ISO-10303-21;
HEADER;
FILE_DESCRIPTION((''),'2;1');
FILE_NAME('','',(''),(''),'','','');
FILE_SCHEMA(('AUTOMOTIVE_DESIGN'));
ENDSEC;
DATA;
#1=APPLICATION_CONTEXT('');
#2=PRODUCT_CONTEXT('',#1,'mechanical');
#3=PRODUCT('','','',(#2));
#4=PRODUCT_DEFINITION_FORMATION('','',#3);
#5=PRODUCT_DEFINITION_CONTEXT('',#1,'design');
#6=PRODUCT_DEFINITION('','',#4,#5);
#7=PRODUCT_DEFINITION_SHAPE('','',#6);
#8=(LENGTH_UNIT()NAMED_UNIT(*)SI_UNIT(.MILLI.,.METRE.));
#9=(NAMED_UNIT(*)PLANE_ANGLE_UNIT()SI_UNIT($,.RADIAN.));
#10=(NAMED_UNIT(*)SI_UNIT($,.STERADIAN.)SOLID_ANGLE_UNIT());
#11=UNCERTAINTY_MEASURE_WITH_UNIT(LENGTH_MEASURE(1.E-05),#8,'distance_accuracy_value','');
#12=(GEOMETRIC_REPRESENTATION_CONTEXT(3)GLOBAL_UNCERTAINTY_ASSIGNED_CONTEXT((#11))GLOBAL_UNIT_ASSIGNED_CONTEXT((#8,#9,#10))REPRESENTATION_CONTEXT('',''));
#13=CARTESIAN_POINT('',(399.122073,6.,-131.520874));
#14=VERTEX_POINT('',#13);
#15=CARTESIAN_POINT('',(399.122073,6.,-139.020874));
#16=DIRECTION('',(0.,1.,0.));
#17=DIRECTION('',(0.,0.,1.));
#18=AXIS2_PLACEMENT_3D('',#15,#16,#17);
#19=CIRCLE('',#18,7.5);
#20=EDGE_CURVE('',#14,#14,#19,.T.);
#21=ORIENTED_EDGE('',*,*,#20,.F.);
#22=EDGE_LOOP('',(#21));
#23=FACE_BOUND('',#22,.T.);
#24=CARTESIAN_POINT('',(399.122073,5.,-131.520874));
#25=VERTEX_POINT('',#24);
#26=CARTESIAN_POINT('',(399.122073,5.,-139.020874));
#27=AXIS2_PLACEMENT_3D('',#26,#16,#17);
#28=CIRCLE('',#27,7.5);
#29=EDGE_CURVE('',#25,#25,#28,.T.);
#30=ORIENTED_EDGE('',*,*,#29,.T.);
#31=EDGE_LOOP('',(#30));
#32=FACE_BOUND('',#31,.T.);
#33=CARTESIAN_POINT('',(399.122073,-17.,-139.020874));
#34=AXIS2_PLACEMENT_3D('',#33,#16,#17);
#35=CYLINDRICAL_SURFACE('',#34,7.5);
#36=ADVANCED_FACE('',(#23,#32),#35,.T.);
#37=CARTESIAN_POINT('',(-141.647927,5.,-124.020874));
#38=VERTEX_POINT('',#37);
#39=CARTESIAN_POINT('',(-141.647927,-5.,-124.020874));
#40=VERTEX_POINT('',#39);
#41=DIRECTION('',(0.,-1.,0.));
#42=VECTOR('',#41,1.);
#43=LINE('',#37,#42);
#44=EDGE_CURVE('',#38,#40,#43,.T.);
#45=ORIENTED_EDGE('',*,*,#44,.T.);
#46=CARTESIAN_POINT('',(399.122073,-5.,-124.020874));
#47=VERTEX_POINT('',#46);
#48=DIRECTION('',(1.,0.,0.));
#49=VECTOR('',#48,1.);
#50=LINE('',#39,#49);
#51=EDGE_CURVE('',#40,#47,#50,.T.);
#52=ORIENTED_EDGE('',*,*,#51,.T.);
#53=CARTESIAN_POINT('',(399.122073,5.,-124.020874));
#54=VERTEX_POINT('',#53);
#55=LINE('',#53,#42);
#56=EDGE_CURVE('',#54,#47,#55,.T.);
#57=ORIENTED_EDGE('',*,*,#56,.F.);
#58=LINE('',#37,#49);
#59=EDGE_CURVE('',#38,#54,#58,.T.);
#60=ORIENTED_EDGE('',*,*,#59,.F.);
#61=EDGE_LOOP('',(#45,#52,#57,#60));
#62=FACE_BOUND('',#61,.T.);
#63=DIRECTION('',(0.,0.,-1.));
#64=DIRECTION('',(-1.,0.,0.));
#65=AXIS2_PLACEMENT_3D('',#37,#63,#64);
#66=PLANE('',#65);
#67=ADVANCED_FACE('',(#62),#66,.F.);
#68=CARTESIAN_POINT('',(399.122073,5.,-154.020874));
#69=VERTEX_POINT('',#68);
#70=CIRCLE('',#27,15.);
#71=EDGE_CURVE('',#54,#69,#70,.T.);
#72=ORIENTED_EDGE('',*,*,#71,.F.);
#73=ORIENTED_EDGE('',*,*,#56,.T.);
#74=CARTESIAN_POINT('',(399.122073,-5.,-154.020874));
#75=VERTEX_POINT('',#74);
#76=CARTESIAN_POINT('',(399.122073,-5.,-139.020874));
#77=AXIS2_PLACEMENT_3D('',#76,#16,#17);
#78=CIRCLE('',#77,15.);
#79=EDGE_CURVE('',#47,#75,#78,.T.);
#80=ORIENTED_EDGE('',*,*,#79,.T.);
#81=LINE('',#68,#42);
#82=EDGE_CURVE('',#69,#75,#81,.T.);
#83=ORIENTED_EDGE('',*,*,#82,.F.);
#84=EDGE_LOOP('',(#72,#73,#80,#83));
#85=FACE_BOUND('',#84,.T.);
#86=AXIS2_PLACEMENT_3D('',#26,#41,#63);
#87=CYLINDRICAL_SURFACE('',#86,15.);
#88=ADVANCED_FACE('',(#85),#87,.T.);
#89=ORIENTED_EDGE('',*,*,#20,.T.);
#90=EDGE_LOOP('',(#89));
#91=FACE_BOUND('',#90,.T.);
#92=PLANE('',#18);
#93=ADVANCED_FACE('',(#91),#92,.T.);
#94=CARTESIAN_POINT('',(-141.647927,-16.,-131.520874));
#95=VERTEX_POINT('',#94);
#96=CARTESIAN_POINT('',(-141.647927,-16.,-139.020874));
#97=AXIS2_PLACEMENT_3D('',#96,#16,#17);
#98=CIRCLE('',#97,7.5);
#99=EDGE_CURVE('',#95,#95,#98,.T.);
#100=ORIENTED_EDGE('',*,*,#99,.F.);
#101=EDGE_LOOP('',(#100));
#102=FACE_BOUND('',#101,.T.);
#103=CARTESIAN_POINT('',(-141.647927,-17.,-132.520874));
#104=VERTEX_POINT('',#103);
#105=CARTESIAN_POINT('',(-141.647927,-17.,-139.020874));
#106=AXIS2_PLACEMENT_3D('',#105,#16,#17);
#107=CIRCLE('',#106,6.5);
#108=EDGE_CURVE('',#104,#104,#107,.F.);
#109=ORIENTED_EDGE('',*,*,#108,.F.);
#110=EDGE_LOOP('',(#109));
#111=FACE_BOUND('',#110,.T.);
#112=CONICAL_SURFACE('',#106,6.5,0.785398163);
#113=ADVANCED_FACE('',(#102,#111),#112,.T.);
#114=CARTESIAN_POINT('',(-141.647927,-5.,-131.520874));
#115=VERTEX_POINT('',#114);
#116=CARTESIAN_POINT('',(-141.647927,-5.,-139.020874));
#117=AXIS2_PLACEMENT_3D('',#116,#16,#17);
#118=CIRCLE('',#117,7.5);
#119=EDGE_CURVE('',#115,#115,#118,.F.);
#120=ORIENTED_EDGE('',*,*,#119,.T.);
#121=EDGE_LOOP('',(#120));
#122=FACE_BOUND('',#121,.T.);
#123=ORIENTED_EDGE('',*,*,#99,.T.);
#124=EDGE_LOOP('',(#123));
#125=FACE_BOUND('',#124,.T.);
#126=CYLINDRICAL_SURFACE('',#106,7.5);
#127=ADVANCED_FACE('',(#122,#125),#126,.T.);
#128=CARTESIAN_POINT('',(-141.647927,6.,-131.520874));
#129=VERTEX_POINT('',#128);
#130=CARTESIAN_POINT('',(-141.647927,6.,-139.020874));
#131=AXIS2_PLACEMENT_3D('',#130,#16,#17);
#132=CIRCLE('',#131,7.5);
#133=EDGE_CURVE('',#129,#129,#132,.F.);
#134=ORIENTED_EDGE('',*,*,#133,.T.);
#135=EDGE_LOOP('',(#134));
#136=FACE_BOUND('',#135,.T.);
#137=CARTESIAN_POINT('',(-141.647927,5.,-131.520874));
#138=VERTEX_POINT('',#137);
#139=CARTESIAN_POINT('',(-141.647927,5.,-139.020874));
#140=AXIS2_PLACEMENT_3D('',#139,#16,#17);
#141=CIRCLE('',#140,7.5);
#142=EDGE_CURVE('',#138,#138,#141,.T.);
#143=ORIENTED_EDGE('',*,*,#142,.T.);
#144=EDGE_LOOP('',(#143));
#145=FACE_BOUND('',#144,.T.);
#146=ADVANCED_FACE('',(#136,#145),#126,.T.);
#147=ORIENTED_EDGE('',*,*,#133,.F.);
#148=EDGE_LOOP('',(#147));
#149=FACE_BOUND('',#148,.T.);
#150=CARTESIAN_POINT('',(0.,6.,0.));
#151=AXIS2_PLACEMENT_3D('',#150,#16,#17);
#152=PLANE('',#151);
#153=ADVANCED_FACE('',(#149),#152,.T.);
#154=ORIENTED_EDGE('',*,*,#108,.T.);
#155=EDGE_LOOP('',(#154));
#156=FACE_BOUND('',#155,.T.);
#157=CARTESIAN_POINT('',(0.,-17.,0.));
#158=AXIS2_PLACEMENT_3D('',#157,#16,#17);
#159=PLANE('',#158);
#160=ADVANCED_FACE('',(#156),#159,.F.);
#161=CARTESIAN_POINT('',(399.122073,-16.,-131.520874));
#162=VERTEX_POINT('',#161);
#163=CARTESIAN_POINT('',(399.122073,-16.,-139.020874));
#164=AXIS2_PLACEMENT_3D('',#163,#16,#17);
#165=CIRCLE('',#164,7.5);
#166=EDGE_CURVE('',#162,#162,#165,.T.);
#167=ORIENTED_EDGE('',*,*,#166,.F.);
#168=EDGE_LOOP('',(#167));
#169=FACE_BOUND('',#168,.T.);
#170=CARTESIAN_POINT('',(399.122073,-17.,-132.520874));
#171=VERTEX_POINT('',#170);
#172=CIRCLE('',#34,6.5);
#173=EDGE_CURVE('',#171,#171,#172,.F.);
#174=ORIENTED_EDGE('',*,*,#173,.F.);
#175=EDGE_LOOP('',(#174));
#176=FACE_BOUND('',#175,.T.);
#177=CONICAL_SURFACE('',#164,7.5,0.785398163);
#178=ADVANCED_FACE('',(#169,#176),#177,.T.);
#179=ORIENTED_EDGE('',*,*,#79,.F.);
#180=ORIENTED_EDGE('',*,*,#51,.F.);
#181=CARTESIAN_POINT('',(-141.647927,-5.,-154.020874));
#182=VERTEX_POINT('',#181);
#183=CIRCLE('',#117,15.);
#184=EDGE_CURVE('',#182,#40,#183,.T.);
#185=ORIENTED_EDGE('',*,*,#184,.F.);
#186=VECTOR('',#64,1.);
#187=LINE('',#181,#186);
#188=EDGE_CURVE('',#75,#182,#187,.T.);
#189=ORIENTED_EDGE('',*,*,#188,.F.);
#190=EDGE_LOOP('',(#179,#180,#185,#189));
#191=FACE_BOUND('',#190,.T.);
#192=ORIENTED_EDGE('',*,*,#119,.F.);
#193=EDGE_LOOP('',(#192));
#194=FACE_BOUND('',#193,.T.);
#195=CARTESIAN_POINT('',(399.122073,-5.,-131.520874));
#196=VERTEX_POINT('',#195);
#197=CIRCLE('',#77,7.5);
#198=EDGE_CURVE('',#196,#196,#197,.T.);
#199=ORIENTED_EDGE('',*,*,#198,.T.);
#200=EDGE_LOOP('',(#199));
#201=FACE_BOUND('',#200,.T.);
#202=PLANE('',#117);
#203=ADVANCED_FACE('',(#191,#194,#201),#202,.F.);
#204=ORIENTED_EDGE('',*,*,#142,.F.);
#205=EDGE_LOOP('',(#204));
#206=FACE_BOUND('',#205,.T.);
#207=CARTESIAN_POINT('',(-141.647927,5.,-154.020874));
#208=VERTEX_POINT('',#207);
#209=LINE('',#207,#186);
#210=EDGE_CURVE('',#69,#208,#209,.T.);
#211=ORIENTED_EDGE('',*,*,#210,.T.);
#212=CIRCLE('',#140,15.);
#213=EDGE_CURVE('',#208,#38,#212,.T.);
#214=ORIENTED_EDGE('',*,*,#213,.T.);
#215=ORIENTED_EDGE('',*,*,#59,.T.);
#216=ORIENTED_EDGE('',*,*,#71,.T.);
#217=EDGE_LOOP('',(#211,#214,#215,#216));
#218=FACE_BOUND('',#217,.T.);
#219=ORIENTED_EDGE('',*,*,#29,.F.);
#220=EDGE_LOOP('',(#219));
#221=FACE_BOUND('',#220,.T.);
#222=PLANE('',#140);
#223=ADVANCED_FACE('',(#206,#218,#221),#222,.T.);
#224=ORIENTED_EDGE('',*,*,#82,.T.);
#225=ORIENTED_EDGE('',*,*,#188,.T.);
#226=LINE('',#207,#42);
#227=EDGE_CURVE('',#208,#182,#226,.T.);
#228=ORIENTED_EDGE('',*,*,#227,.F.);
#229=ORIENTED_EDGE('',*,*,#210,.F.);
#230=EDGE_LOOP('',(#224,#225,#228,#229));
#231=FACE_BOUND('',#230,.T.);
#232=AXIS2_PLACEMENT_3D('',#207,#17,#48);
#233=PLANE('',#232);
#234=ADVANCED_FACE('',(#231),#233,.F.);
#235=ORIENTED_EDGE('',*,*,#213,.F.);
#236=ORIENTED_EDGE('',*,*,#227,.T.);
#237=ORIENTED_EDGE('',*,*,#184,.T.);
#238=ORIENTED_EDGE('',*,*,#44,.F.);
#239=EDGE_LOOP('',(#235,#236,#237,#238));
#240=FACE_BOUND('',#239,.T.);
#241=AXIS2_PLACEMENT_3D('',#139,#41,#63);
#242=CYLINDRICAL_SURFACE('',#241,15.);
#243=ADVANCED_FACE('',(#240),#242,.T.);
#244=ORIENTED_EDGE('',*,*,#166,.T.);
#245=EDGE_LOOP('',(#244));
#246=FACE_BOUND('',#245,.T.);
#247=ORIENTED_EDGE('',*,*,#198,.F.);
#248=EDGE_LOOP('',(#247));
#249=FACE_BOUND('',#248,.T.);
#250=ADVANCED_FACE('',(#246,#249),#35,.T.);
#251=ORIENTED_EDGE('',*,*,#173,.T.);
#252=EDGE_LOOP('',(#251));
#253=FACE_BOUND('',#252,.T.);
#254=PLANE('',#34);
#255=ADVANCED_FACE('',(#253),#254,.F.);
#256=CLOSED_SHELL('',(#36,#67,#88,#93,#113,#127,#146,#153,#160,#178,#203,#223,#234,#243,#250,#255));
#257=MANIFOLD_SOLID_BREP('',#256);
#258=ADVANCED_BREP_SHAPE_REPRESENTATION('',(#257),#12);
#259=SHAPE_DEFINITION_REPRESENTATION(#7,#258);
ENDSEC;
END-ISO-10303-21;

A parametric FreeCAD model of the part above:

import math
import FreeCAD as App
import Part
import Sketcher


def edges_at(feature, points):
    """Names of the edges that pass closest to the given points."""
    edges = feature.Shape.Edges
    near = lambda p: min(range(len(edges)), key=lambda i: edges[i].distToShape(Part.Vertex(*p))[0])
    return sorted({f"Edge{near(p) + 1}" for p in points})

doc = App.newDocument("Part")
params = doc.addObject("Spreadsheet::Sheet", "Params")
for row, (alias, value) in enumerate([
    ("sketch1_diameter", "15 mm"),
    ("sketch1_radius", "15 mm"),
    ("sketch1_width", "540.77 mm"),
    ("pad1_length", "10 mm"),
    ("sketch2_diameter", "15 mm"),
    ("pad2_length", "1 mm"),
    ("pad2_length2", "22 mm"),
    ("chamfer_size", "1 mm"),
    ("sketch3_diameter", "15 mm"),
    ("pad3_length", "1 mm"),
    ("pad3_length2", "22 mm"),
    ("chamfer2_size", "1 mm"),
], start=1):
    params.set(f"A{row}", alias)
    params.set(f"B{row}", "=" + value)
    params.setAlias(f"B{row}", alias)

body = doc.addObject("PartDesign::Body", "Body")

sketch1 = doc.addObject("Sketcher::SketchObject", "Sketch")
body.addObject(sketch1)
sketch1.AttachmentSupport = (doc.XZ_Plane, [""])
sketch1.MapMode = "FlatFace"
sketch1.addGeometry(Part.LineSegment(App.Vector(399, -154, 0), App.Vector(-142, -154, 0)), False)
sketch1.addGeometry(Part.ArcOfCircle(Part.Circle(App.Vector(-142, -139, 0), App.Vector(0, 0, 1), 15), math.radians(90), math.radians(270)), False)
sketch1.addGeometry(Part.LineSegment(App.Vector(-142, -124, 0), App.Vector(399, -124, 0)), False)
sketch1.addGeometry(Part.ArcOfCircle(Part.Circle(App.Vector(399, -139, 0), App.Vector(0, 0, 1), 15), math.radians(-90), math.radians(90)), False)
sketch1.addGeometry(Part.Circle(App.Vector(399, -139, 0), App.Vector(0, 0, 1), 8), False)
sketch1.addGeometry(Part.Circle(App.Vector(-142, -139, 0), App.Vector(0, 0, 1), 8), False)
sketch1.addConstraint(Sketcher.Constraint("Tangent", 0, 2, 1, 2))
sketch1.addConstraint(Sketcher.Constraint("Tangent", 1, 1, 2, 1))
sketch1.addConstraint(Sketcher.Constraint("Tangent", 2, 2, 3, 2))
sketch1.addConstraint(Sketcher.Constraint("Tangent", 3, 1, 0, 1))
sketch1.addConstraint(Sketcher.Constraint("Horizontal", 0))
sketch1.addConstraint(Sketcher.Constraint("Horizontal", 2))
sketch1.addConstraint(Sketcher.Constraint("Coincident", 4, 3, 3, 3))
sketch1.addConstraint(Sketcher.Constraint("Coincident", 5, 3, 1, 3))
sketch1.addConstraint(Sketcher.Constraint("Equal", 4, 5))
sketch1.addConstraint(Sketcher.Constraint("Diameter", 4, 15.0))
sketch1.addConstraint(Sketcher.Constraint("Radius", 1, 15.0))
sketch1.addConstraint(Sketcher.Constraint("DistanceX", 0, 2, 0, 1, 540.77))
sketch1.addConstraint(Sketcher.Constraint("DistanceX", 1, 3, -1, 1, 141.647927))
sketch1.addConstraint(Sketcher.Constraint("DistanceY", 1, 3, -1, 1, 139.020874))
sketch1.setExpression("Constraints[9]", "Params.sketch1_diameter")
sketch1.setExpression("Constraints[10]", "Params.sketch1_radius")
sketch1.setExpression("Constraints[11]", "Params.sketch1_width")
pad1 = doc.addObject("PartDesign::Pad", "Pad")
body.addObject(pad1)
pad1.Profile = sketch1
pad1.setExpression("Length", "Params.pad1_length")
pad1.Midplane = True

sketch2 = doc.addObject("Sketcher::SketchObject", "Sketch001")
body.addObject(sketch2)
sketch2.AttachmentSupport = (doc.XZ_Plane, [""])
sketch2.MapMode = "FlatFace"
sketch2.AttachmentOffset = App.Placement(App.Vector(0, 0, -5), App.Rotation())
sketch2.addGeometry(Part.Circle(App.Vector(-142, -139, 0), App.Vector(0, 0, 1), 8), False)
sketch2.addConstraint(Sketcher.Constraint("Diameter", 0, 15.0))
sketch2.addConstraint(Sketcher.Constraint("DistanceX", 0, 3, -1, 1, 141.647927))
sketch2.addConstraint(Sketcher.Constraint("DistanceY", 0, 3, -1, 1, 139.020874))
sketch2.setExpression("Constraints[0]", "Params.sketch2_diameter")
pad2 = doc.addObject("PartDesign::Pad", "Pad001")
body.addObject(pad2)
pad2.Profile = sketch2
pad2.Type = "TwoLengths"
pad2.setExpression("Length", "Params.pad2_length")
pad2.setExpression("Length2", "Params.pad2_length2")
pad2.Reversed = True
doc.recompute()

chamfer = doc.addObject("PartDesign::Chamfer", "Chamfer")
body.addObject(chamfer)
chamfer.Base = (pad2, edges_at(pad2, [(-141.648, -17, -146.521)]))
chamfer.setExpression("Size", "Params.chamfer_size")

sketch3 = doc.addObject("Sketcher::SketchObject", "Sketch002")
body.addObject(sketch3)
sketch3.AttachmentSupport = (doc.XZ_Plane, [""])
sketch3.MapMode = "FlatFace"
sketch3.AttachmentOffset = App.Placement(App.Vector(0, 0, -5), App.Rotation())
sketch3.addGeometry(Part.Circle(App.Vector(399, -139, 0), App.Vector(0, 0, 1), 8), False)
sketch3.addConstraint(Sketcher.Constraint("Diameter", 0, 15.0))
sketch3.addConstraint(Sketcher.Constraint("DistanceX", -1, 1, 0, 3, 399.122073))
sketch3.addConstraint(Sketcher.Constraint("DistanceY", 0, 3, -1, 1, 139.020874))
sketch3.setExpression("Constraints[0]", "Params.sketch3_diameter")
pad3 = doc.addObject("PartDesign::Pad", "Pad002")
body.addObject(pad3)
pad3.Profile = sketch3
pad3.Type = "TwoLengths"
pad3.setExpression("Length", "Params.pad3_length")
pad3.setExpression("Length2", "Params.pad3_length2")
pad3.Reversed = True
doc.recompute()

chamfer2 = doc.addObject("PartDesign::Chamfer", "Chamfer001")
body.addObject(chamfer2)
chamfer2.Base = (pad3, edges_at(pad3, [(399.122, -17, -146.521)]))
chamfer2.setExpression("Size", "Params.chamfer2_size")

doc.recompute()
